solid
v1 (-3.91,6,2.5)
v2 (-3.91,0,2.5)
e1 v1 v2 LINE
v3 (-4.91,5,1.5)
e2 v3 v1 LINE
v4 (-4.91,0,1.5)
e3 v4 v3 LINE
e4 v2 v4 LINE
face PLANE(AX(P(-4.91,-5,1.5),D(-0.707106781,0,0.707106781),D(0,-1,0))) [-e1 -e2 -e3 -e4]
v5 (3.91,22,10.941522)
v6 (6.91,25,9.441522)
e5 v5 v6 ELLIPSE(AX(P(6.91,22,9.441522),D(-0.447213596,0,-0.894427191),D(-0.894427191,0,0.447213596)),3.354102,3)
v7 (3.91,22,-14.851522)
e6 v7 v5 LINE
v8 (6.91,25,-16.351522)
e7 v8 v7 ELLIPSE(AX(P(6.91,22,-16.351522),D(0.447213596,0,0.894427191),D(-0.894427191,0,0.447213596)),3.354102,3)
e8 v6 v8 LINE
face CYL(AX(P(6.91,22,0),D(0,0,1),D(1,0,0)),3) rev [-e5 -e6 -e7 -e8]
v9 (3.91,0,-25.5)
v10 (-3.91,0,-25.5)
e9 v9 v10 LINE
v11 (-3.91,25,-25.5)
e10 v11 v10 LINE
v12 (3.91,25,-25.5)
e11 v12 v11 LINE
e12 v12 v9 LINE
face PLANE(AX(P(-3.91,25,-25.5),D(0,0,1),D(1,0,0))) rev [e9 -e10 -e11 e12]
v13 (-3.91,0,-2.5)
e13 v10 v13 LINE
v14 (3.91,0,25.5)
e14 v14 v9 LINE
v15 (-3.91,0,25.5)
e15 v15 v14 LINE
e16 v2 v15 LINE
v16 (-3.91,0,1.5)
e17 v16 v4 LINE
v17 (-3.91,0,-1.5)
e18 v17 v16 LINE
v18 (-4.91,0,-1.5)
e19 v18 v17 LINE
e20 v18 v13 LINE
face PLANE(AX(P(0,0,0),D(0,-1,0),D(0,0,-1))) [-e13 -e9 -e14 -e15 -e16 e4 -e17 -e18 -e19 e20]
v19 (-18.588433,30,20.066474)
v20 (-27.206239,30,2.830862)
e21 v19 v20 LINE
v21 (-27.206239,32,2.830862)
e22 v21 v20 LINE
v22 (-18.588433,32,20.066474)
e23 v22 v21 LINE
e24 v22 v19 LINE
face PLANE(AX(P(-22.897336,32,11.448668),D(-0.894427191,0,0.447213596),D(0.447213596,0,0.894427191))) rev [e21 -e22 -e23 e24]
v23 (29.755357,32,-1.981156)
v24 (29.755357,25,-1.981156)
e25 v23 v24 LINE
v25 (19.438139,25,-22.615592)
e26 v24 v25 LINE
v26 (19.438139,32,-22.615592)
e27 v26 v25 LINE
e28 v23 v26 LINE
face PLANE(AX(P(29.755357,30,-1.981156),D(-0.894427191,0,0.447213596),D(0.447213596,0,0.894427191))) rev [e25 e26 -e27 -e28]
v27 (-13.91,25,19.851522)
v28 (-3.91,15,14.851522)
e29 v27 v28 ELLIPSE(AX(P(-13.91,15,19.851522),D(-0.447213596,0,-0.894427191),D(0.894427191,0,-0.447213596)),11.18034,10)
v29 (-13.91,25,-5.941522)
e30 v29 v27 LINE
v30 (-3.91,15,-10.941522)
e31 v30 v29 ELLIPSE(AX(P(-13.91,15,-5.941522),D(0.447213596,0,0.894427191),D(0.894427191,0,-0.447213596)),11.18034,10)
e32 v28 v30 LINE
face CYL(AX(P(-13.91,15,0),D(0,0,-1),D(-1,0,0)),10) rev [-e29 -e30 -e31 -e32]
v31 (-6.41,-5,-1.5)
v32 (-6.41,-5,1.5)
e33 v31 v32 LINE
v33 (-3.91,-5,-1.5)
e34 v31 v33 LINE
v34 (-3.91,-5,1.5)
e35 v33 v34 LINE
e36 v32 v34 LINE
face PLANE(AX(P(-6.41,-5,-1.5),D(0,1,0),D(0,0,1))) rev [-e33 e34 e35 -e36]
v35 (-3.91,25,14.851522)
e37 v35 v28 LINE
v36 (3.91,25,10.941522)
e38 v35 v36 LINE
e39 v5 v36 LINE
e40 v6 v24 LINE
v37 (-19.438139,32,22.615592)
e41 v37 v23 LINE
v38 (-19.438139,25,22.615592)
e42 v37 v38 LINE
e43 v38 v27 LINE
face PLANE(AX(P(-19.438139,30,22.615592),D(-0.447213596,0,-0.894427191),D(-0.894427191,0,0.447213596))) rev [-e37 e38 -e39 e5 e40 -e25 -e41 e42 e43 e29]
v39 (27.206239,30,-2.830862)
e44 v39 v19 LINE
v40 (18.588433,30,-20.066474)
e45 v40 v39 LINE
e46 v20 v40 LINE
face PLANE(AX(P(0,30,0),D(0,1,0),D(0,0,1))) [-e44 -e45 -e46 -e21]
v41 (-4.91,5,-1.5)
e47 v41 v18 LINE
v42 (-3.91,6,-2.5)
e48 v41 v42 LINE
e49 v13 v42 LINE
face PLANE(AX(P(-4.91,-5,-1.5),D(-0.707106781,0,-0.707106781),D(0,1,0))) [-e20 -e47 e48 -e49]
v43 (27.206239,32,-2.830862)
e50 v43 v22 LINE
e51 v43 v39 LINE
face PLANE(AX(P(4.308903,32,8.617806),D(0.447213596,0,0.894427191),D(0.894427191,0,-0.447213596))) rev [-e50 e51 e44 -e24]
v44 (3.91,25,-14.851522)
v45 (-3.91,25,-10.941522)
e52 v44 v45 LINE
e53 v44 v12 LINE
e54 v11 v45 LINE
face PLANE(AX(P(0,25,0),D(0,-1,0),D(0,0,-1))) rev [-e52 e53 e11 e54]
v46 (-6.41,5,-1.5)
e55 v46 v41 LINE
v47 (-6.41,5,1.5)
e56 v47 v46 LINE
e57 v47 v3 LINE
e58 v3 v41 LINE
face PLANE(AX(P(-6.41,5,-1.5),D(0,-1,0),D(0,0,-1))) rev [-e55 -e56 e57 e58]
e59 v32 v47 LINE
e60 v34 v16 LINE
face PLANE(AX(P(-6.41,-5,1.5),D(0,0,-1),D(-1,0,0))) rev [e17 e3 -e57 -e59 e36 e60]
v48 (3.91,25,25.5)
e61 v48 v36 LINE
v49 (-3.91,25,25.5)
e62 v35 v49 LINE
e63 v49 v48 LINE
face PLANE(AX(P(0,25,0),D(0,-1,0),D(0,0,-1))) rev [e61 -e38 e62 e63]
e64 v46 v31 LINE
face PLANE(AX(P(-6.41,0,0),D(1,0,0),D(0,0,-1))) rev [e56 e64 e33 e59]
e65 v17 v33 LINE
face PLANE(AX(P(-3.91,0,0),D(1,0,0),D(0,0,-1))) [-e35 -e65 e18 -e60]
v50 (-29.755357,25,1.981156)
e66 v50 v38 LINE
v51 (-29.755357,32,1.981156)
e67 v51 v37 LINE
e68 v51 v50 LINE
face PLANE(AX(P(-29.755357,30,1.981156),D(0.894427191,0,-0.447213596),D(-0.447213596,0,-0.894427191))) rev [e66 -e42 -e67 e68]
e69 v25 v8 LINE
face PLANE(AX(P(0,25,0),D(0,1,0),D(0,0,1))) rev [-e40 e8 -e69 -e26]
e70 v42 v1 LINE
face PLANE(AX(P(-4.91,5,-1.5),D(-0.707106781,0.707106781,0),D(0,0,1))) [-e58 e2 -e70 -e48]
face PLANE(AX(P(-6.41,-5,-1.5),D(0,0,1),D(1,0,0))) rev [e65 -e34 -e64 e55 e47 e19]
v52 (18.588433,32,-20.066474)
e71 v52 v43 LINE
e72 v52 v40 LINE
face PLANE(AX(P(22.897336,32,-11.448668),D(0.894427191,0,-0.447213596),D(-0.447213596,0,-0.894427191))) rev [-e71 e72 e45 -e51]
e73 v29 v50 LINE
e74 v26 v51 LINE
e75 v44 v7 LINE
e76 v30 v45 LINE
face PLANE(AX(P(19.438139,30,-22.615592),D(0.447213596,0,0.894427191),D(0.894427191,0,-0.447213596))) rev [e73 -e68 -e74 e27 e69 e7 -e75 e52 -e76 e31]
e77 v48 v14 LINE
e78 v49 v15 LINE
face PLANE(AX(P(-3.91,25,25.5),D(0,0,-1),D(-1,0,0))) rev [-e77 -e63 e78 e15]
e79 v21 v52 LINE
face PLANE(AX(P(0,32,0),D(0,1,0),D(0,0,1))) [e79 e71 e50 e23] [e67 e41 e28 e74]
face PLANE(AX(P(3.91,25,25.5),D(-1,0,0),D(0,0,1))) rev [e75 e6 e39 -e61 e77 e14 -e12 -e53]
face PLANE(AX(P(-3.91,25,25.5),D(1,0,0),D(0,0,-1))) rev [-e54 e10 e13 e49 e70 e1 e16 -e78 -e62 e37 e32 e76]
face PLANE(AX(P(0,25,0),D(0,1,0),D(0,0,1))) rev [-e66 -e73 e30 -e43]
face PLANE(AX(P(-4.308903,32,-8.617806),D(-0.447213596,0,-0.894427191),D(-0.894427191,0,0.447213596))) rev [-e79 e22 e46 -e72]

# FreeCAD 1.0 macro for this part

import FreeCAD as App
import Part
import Sketcher
from FreeCAD import Vector


def edges_at(feature, points):
    """Names of the edges that pass closest to the given points."""
    edges = feature.Shape.Edges
    near = lambda p: min(range(len(edges)), key=lambda i: edges[i].distToShape(Part.Vertex(*p))[0])
    return sorted({f"Edge{near(p) + 1}" for p in points})

doc = App.newDocument("Part")
body = doc.addObject("PartDesign::Body", "Body")

# Sketch on XZ plane
sketch1 = doc.addObject("Sketcher::SketchObject", "Sketch")
body.addObject(sketch1)
sketch1.AttachmentSupport = (doc.XZ_Plane, [""])
sketch1.MapMode = "FlatFace"
sketch1.addGeometry(Part.LineSegment(Vector(-4, -26, 0), Vector(-4, 26, 0)), False)
sketch1.addGeometry(Part.LineSegment(Vector(-4, 26, 0), Vector(4, 26, 0)), False)
sketch1.addGeometry(Part.LineSegment(Vector(4, 26, 0), Vector(4, -26, 0)), False)
sketch1.addGeometry(Part.LineSegment(Vector(4, -26, 0), Vector(-4, -26, 0)), False)
sketch1.addConstraint(Sketcher.Constraint("Coincident", 0, 2, 1, 1))
sketch1.addConstraint(Sketcher.Constraint("Coincident", 1, 2, 2, 1))
sketch1.addConstraint(Sketcher.Constraint("Coincident", 2, 2, 3, 1))
sketch1.addConstraint(Sketcher.Constraint("Coincident", 3, 2, 0, 1))
sketch1.addConstraint(Sketcher.Constraint("Vertical", 0))
sketch1.addConstraint(Sketcher.Constraint("Horizontal", 1))
sketch1.addConstraint(Sketcher.Constraint("Vertical", 2))
sketch1.addConstraint(Sketcher.Constraint("Horizontal", 3))
sketch1.addConstraint(Sketcher.Constraint("Symmetric", 0, 2, 2, 2, -1, 1))
sketch1.addConstraint(Sketcher.Constraint("DistanceY", 0, 1, 0, 2, 51.0))
sketch1.addConstraint(Sketcher.Constraint("DistanceX", 1, 1, 1, 2, 7.82))
pad1 = doc.addObject("PartDesign::Pad", "Pad")
body.addObject(pad1)
pad1.Profile = sketch1
pad1.Length = 25
pad1.Reversed = True

# Sketch on XZ plane
sketch2 = doc.addObject("Sketcher::SketchObject", "Sketch001")
body.addObject(sketch2)
sketch2.AttachmentSupport = (doc.XZ_Plane, [""])
sketch2.MapMode = "FlatFace"
sketch2.AttachmentOffset = App.Placement(Vector(0, 0, -25), App.Rotation())
sketch2.addGeometry(Part.LineSegment(Vector(-19, 23, 0), Vector(30, -2, 0)), False)
sketch2.addGeometry(Part.LineSegment(Vector(30, -2, 0), Vector(19, -23, 0)), False)
sketch2.addGeometry(Part.LineSegment(Vector(19, -23, 0), Vector(-30, 2, 0)), False)
sketch2.addGeometry(Part.LineSegment(Vector(-30, 2, 0), Vector(-19, 23, 0)), False)
sketch2.addConstraint(Sketcher.Constraint("Coincident", 0, 2, 1, 1))
sketch2.addConstraint(Sketcher.Constraint("Coincident", 1, 2, 2, 1))
sketch2.addConstraint(Sketcher.Constraint("Coincident", 2, 2, 3, 1))
sketch2.addConstraint(Sketcher.Constraint("Coincident", 3, 2, 0, 1))
sketch2.addConstraint(Sketcher.Constraint("Symmetric", 0, 2, 2, 2, -1, 1))
sketch2.addConstraint(Sketcher.Constraint("Symmetric", 1, 2, 3, 2, -1, 1))
sketch2.addConstraint(Sketcher.Constraint("Perpendicular", 0, 1))
sketch2.addConstraint(Sketcher.Constraint("Distance", 0, 55.0))
sketch2.addConstraint(Sketcher.Constraint("Distance", 1, 23.07))
sketch2.addConstraint(Sketcher.Constraint("DistanceX", -1, 1, 1, 2, 19.438139))
pad2 = doc.addObject("PartDesign::Pad", "Pad001")
body.addObject(pad2)
pad2.Profile = sketch2
pad2.Length = 5
pad2.Reversed = True

# Sketch on XZ plane
sketch3 = doc.addObject("Sketcher::SketchObject", "Sketch002")
body.addObject(sketch3)
sketch3.AttachmentSupport = (doc.XZ_Plane, [""])
sketch3.MapMode = "FlatFace"
sketch3.AttachmentOffset = App.Placement(Vector(0, 0, -30), App.Rotation())
sketch3.addGeometry(Part.LineSegment(Vector(-19, 23, 0), Vector(30, -2, 0)), False)
sketch3.addGeometry(Part.LineSegment(Vector(30, -2, 0), Vector(19, -23, 0)), False)
sketch3.addGeometry(Part.LineSegment(Vector(19, -23, 0), Vector(-30, 2, 0)), False)
sketch3.addGeometry(Part.LineSegment(Vector(-30, 2, 0), Vector(-19, 23, 0)), False)
sketch3.addGeometry(Part.LineSegment(Vector(19, -20, 0), Vector(27, -3, 0)), False)
sketch3.addGeometry(Part.LineSegment(Vector(27, -3, 0), Vector(-19, 20, 0)), False)
sketch3.addGeometry(Part.LineSegment(Vector(-19, 20, 0), Vector(-27, 3, 0)), False)
sketch3.addGeometry(Part.LineSegment(Vector(-27, 3, 0), Vector(19, -20, 0)), False)
sketch3.addConstraint(Sketcher.Constraint("Coincident", 0, 2, 1, 1))
sketch3.addConstraint(Sketcher.Constraint("Coincident", 1, 2, 2, 1))
sketch3.addConstraint(Sketcher.Constraint("Coincident", 2, 2, 3, 1))
sketch3.addConstraint(Sketcher.Constraint("Coincident", 3, 2, 0, 1))
sketch3.addConstraint(Sketcher.Constraint("Coincident", 4, 2, 5, 1))
sketch3.addConstraint(Sketcher.Constraint("Coincident", 5, 2, 6, 1))
sketch3.addConstraint(Sketcher.Constraint("Coincident", 6, 2, 7, 1))
sketch3.addConstraint(Sketcher.Constraint("Coincident", 7, 2, 4, 1))
sketch3.addConstraint(Sketcher.Constraint("Symmetric", 0, 2, 2, 2, -1, 1))
sketch3.addConstraint(Sketcher.Constraint("Symmetric", 1, 2, 3, 2, -1, 1))
sketch3.addConstraint(Sketcher.Constraint("Symmetric", 4, 2, 6, 2, -1, 1))
sketch3.addConstraint(Sketcher.Constraint("Symmetric", 5, 2, 7, 2, -1, 1))
sketch3.addConstraint(Sketcher.Constraint("Perpendicular", 0, 1))
sketch3.addConstraint(Sketcher.Constraint("Parallel", 3, 4))
sketch3.addConstraint(Sketcher.Constraint("Perpendicular", 4, 5))
sketch3.addConstraint(Sketcher.Constraint("Distance", 0, 55.0))
sketch3.addConstraint(Sketcher.Constraint("Distance", 5, 51.2))
sketch3.addConstraint(Sketcher.Constraint("Distance", 1, 23.07))
sketch3.addConstraint(Sketcher.Constraint("Distance", 4, 19.27))
sketch3.addConstraint(Sketcher.Constraint("DistanceX", 1, 2, 4, 2, 7.7681))
pad3 = doc.addObject("PartDesign::Pad", "Pad002")
body.addObject(pad3)
pad3.Profile = sketch3
pad3.Length = 2
pad3.Reversed = True
doc.recompute()

fillet = doc.addObject("PartDesign::Fillet", "Fillet")
body.addObject(fillet)
fillet.Base = (pad3, edges_at(pad3, [(-3.91, 25, 1.955)]))
fillet.Radius = 10
doc.recompute()

fillet2 = doc.addObject("PartDesign::Fillet", "Fillet001")
body.addObject(fillet2)
fillet2.Base = (fillet, edges_at(fillet, [(3.91, 25, -1.955)]))
fillet2.Radius = 3

# Sketch on YZ plane
sketch4 = doc.addObject("Sketcher::SketchObject", "Sketch003")
body.addObject(sketch4)
sketch4.AttachmentSupport = (doc.YZ_Plane, [""])
sketch4.MapMode = "FlatFace"
sketch4.AttachmentOffset = App.Placement(Vector(0, 0, -3.91), App.Rotation())
sketch4.addGeometry(Part.LineSegment(Vector(5, -1.5, 0), Vector(-5, -1.5, 0)), False)
sketch4.addGeometry(Part.LineSegment(Vector(-5, -1.5, 0), Vector(-5, 1.5, 0)), False)
sketch4.addGeometry(Part.LineSegment(Vector(-5, 1.5, 0), Vector(5, 1.5, 0)), False)
sketch4.addGeometry(Part.LineSegment(Vector(5, 1.5, 0), Vector(5, -1.5, 0)), False)
sketch4.addConstraint(Sketcher.Constraint("Coincident", 0, 2, 1, 1))
sketch4.addConstraint(Sketcher.Constraint("Coincident", 1, 2, 2, 1))
sketch4.addConstraint(Sketcher.Constraint("Coincident", 2, 2, 3, 1))
sketch4.addConstraint(Sketcher.Constraint("Coincident", 3, 2, 0, 1))
sketch4.addConstraint(Sketcher.Constraint("Horizontal", 0))
sketch4.addConstraint(Sketcher.Constraint("Vertical", 1))
sketch4.addConstraint(Sketcher.Constraint("Horizontal", 2))
sketch4.addConstraint(Sketcher.Constraint("Vertical", 3))
sketch4.addConstraint(Sketcher.Constraint("Symmetric", 0, 2, 2, 2, -1, 1))
sketch4.addConstraint(Sketcher.Constraint("DistanceX", 0, 2, 0, 1, 10.0))
sketch4.addConstraint(Sketcher.Constraint("DistanceY", 1, 1, 1, 2, 3.0))
pad4 = doc.addObject("PartDesign::Pad", "Pad003")
body.addObject(pad4)
pad4.Profile = sketch4
pad4.Length = 2.5
pad4.Reversed = True
doc.recompute()

chamfer = doc.addObject("PartDesign::Chamfer", "Chamfer")
body.addObject(chamfer)
chamfer.Base = (pad4, edges_at(pad4, [(-3.91, 2.5, 1.5), (-3.91, 5, 0), (-3.91, 2.5, -1.5)]))
chamfer.Size = 1

doc.recompute()
